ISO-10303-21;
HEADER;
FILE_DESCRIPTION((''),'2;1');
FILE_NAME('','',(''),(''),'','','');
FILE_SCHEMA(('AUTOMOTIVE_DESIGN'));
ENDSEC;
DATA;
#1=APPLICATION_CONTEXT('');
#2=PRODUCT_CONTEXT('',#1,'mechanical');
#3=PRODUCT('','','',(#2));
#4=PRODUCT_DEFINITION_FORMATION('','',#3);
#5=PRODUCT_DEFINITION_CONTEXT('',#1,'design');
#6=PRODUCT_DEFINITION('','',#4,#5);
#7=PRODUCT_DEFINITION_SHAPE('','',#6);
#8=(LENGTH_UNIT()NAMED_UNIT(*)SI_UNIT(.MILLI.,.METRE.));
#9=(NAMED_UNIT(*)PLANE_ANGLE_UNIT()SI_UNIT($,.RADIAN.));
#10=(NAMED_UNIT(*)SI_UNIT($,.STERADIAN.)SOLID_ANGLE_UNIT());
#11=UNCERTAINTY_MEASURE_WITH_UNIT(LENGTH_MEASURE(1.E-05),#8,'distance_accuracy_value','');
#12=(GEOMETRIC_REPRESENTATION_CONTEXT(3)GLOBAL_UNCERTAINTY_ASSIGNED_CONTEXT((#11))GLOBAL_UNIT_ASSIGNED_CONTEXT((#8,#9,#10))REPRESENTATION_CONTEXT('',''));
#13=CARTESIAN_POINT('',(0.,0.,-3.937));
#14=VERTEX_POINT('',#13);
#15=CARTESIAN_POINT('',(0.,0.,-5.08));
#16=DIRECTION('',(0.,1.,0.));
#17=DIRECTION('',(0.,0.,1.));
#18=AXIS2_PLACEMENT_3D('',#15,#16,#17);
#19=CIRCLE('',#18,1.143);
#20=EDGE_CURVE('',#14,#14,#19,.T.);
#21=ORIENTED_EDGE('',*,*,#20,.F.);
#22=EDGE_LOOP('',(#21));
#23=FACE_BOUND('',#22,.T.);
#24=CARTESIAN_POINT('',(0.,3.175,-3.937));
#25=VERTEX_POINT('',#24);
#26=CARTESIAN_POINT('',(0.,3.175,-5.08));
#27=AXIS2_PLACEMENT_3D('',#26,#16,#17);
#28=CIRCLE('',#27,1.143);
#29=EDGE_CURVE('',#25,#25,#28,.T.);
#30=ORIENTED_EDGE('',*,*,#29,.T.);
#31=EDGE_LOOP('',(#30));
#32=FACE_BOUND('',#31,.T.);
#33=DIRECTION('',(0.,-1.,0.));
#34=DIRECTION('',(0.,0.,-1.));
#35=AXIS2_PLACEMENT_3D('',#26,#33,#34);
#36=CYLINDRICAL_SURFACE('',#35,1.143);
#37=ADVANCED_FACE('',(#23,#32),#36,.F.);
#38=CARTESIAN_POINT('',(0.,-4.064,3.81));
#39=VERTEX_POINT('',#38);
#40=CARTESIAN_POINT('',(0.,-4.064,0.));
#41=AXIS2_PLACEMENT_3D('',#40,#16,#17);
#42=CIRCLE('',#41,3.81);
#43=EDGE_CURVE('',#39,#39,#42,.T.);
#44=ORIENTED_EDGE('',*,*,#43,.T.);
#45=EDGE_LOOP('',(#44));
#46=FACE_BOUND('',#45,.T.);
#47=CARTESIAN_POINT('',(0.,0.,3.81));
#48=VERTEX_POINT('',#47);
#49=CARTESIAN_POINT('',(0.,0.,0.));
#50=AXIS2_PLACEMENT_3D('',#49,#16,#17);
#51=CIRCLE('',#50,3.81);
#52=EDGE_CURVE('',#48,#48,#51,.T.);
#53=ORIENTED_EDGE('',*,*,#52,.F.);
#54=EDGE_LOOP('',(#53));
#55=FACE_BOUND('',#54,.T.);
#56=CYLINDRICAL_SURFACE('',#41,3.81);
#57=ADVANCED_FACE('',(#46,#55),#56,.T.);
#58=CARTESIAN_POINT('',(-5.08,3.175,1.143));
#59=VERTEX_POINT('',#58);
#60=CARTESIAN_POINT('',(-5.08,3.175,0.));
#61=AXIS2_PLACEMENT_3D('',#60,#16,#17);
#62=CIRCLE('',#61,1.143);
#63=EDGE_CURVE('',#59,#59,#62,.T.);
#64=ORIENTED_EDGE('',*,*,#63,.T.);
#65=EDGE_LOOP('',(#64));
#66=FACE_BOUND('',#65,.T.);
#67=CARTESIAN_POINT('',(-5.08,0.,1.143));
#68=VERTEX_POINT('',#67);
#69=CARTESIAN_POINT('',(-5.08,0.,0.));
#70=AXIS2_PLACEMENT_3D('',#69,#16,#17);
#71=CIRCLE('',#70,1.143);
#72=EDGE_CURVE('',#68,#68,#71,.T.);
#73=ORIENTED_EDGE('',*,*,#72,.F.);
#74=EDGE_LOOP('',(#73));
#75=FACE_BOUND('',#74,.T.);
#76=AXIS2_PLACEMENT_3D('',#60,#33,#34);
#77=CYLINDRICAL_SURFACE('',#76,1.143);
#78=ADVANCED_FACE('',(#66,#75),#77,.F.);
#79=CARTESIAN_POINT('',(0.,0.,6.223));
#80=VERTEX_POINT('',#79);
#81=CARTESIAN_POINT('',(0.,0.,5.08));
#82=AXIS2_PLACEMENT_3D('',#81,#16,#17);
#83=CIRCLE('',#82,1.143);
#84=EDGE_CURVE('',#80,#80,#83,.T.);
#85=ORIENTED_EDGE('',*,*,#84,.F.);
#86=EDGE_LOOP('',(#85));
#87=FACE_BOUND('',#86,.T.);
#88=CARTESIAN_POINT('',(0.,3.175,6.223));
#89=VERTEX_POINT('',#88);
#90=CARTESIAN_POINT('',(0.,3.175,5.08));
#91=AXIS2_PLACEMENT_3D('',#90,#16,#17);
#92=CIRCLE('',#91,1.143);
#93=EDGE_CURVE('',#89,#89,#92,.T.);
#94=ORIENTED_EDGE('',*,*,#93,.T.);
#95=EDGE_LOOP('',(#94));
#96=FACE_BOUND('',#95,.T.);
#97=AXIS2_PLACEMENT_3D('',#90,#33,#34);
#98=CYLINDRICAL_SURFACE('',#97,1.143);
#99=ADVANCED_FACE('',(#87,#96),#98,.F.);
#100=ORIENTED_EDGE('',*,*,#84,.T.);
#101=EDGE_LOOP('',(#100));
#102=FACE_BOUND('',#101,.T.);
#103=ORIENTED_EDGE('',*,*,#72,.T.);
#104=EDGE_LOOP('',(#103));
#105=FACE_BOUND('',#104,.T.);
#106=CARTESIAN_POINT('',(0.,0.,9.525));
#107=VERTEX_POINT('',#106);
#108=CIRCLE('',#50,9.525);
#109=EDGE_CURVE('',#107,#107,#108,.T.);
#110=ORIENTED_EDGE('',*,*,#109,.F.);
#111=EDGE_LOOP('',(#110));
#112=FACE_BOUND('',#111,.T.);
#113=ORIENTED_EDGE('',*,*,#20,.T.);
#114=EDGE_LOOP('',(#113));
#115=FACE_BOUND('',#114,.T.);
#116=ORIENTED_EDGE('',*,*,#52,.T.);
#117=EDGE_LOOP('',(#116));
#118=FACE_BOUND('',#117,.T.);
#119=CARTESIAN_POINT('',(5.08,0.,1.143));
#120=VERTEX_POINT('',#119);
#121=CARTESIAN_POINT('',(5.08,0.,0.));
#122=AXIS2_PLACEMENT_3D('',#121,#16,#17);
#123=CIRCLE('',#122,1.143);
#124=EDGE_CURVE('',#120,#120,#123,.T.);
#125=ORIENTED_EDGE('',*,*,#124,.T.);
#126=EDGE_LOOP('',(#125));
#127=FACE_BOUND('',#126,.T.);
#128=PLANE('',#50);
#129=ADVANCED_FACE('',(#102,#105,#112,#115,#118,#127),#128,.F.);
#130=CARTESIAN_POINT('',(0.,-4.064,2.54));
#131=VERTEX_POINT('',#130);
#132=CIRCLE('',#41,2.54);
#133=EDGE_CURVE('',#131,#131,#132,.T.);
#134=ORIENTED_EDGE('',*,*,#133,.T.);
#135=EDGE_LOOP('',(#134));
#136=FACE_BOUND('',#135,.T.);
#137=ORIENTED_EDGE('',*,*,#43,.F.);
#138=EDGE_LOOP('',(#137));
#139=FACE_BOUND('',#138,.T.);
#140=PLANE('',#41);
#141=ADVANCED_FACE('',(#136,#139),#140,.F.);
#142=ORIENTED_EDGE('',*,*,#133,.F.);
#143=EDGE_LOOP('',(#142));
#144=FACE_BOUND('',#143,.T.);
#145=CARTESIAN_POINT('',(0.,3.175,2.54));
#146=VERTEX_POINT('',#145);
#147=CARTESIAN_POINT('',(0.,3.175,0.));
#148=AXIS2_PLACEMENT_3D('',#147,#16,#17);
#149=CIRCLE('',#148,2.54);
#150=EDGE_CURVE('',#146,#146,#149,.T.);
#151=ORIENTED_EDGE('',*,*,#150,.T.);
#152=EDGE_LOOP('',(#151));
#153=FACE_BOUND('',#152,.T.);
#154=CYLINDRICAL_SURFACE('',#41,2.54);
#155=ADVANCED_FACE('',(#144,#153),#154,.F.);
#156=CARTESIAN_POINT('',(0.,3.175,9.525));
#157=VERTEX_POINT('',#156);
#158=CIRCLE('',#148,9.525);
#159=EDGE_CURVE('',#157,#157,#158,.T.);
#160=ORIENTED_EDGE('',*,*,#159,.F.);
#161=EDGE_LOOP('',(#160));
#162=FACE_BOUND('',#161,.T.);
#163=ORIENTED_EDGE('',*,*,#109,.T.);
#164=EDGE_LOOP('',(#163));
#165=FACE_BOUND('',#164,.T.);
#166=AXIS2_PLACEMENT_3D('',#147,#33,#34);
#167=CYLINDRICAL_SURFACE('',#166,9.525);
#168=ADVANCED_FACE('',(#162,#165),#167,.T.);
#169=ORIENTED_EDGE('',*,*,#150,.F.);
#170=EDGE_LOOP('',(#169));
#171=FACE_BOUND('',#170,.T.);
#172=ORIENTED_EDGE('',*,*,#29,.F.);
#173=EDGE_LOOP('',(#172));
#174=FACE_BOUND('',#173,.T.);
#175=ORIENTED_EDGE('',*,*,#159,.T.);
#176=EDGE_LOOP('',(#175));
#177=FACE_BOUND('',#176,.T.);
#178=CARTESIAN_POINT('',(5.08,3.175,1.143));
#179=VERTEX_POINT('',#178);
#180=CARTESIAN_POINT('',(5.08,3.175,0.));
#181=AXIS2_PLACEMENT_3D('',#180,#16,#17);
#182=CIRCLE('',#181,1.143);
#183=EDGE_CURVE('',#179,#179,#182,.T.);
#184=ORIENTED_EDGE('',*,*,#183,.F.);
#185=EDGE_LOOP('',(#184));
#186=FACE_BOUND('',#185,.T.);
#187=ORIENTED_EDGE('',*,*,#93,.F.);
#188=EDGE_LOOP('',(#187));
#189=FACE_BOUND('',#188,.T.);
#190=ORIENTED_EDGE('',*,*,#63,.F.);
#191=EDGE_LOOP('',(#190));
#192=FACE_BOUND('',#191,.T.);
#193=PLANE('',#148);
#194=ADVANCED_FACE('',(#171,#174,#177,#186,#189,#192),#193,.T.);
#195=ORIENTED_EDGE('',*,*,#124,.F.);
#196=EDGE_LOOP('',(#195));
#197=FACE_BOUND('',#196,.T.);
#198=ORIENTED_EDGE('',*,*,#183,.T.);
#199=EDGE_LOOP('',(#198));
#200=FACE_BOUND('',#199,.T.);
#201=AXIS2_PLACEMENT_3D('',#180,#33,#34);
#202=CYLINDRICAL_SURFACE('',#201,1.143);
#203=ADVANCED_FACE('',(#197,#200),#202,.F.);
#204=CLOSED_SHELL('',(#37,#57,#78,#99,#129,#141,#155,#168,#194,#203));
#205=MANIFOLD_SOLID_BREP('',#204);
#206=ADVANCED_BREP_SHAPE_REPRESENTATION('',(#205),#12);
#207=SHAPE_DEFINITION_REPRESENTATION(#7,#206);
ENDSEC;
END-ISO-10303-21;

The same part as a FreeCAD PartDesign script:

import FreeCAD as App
import Part
import Sketcher
Q = App.Units.Quantity

doc = App.newDocument("Part")
params = doc.addObject("Spreadsheet::Sheet", "Params")
for row, (alias, value) in enumerate([
    ("sketch1_diameter", "0.75 in"),
    ("pad1_length", "0.125 in"),
    ("sketch2_diameter", "0.3 in"),
    ("sketch2_diameter2", "0.2 in"),
    ("pad2_length", "0.16 in"),
    ("sketch3_diameter", "0.2 in"),
    ("sketch3_diameter2", "0.09 in"),
    ("pocket1_length", "0.125 in"),
], start=1):
    params.set(f"A{row}", alias)
    params.set(f"B{row}", "=" + value)
    params.setAlias(f"B{row}", alias)

body = doc.addObject("PartDesign::Body", "Body")

sketch1 = body.newObject("Sketcher::SketchObject", "Sketch")
sketch1.AttachmentSupport = (doc.getObject("XZ_Plane"), [""])
sketch1.MapMode = "FlatFace"
sketch1.addGeometry(Part.Circle(App.Vector(0, 0, 0), App.Vector(0, 0, 1), 9.525), False)
sketch1.addConstraint(Sketcher.Constraint("Coincident", 0, 3, -1, 1))
sketch1.addConstraint(Sketcher.Constraint("Diameter", 0, Q("0.75 in")))
sketch1.setExpression("Constraints[1]", "Params.sketch1_diameter")
pad1 = body.newObject("PartDesign::Pad", "Pad")
pad1.Profile = sketch1
pad1.setExpression("Length", "Params.pad1_length")
pad1.Reversed = True

sketch2 = body.newObject("Sketcher::SketchObject", "Sketch001")
sketch2.AttachmentSupport = (doc.getObject("XZ_Plane"), [""])
sketch2.MapMode = "FlatFace"
sketch2.addGeometry(Part.Circle(App.Vector(0, 0, 0), App.Vector(0, 0, 1), 3.81), False)
sketch2.addGeometry(Part.Circle(App.Vector(0, 0, 0), App.Vector(0, 0, 1), 2.54), False)
sketch2.addConstraint(Sketcher.Constraint("Coincident", 0, 3, -1, 1))
sketch2.addConstraint(Sketcher.Constraint("Coincident", 1, 3, -1, 1))
sketch2.addConstraint(Sketcher.Constraint("Diameter", 0, Q("0.3 in")))
sketch2.addConstraint(Sketcher.Constraint("Diameter", 1, Q("0.2 in")))
sketch2.setExpression("Constraints[2]", "Params.sketch2_diameter")
sketch2.setExpression("Constraints[3]", "Params.sketch2_diameter2")
pad2 = body.newObject("PartDesign::Pad", "Pad001")
pad2.Profile = sketch2
pad2.setExpression("Length", "Params.pad2_length")

sketch3 = body.newObject("Sketcher::SketchObject", "Sketch002")
sketch3.AttachmentSupport = (doc.getObject("XZ_Plane"), [""])
sketch3.MapMode = "FlatFace"
sketch3.addGeometry(Part.Circle(App.Vector(0, 0, 0), App.Vector(0, 0, 1), 2.54), False)
sketch3.addGeometry(Part.Circle(App.Vector(5.08, 0, 0), App.Vector(0, 0, 1), 1.143), False)
sketch3.addGeometry(Part.Circle(App.Vector(0, -5.08, 0), App.Vector(0, 0, 1), 1.143), False)
sketch3.addGeometry(Part.Circle(App.Vector(-5.08, 0, 0), App.Vector(0, 0, 1), 1.143), False)
sketch3.addGeometry(Part.Circle(App.Vector(0, 5.08, 0), App.Vector(0, 0, 1), 1.143), False)
sketch3.addConstraint(Sketcher.Constraint("Coincident", 0, 3, -1, 1))
sketch3.addConstraint(Sketcher.Constraint("Equal", 1, 2))
sketch3.addConstraint(Sketcher.Constraint("Equal", 2, 3))
sketch3.addConstraint(Sketcher.Constraint("Equal", 3, 4))
sketch3.addConstraint(Sketcher.Constraint("Symmetric", 1, 3, 3, 3, -1, 1))
sketch3.addConstraint(Sketcher.Constraint("Symmetric", 2, 3, 4, 3, -1, 1))
sketch3.addConstraint(Sketcher.Constraint("PointOnObject", 1, 3, -1))
sketch3.addConstraint(Sketcher.Constraint("PointOnObject", 2, 3, -2))
sketch3.addConstraint(Sketcher.Constraint("Diameter", 0, Q("0.2 in")))
sketch3.addConstraint(Sketcher.Constraint("Diameter", 1, Q("0.09 in")))
sketch3.addConstraint(Sketcher.Constraint("DistanceX", -1, 1, 1, 3, Q("0.2 in")))
sketch3.addConstraint(Sketcher.Constraint("DistanceY", 2, 3, -1, 1, Q("0.2 in")))
sketch3.setExpression("Constraints[8]", "Params.sketch3_diameter")
sketch3.setExpression("Constraints[9]", "Params.sketch3_diameter2")
pocket1 = body.newObject("PartDesign::Pocket", "Pocket")
pocket1.Profile = sketch3
pocket1.setExpression("Length", "Params.pocket1_length")

doc.recompute()
